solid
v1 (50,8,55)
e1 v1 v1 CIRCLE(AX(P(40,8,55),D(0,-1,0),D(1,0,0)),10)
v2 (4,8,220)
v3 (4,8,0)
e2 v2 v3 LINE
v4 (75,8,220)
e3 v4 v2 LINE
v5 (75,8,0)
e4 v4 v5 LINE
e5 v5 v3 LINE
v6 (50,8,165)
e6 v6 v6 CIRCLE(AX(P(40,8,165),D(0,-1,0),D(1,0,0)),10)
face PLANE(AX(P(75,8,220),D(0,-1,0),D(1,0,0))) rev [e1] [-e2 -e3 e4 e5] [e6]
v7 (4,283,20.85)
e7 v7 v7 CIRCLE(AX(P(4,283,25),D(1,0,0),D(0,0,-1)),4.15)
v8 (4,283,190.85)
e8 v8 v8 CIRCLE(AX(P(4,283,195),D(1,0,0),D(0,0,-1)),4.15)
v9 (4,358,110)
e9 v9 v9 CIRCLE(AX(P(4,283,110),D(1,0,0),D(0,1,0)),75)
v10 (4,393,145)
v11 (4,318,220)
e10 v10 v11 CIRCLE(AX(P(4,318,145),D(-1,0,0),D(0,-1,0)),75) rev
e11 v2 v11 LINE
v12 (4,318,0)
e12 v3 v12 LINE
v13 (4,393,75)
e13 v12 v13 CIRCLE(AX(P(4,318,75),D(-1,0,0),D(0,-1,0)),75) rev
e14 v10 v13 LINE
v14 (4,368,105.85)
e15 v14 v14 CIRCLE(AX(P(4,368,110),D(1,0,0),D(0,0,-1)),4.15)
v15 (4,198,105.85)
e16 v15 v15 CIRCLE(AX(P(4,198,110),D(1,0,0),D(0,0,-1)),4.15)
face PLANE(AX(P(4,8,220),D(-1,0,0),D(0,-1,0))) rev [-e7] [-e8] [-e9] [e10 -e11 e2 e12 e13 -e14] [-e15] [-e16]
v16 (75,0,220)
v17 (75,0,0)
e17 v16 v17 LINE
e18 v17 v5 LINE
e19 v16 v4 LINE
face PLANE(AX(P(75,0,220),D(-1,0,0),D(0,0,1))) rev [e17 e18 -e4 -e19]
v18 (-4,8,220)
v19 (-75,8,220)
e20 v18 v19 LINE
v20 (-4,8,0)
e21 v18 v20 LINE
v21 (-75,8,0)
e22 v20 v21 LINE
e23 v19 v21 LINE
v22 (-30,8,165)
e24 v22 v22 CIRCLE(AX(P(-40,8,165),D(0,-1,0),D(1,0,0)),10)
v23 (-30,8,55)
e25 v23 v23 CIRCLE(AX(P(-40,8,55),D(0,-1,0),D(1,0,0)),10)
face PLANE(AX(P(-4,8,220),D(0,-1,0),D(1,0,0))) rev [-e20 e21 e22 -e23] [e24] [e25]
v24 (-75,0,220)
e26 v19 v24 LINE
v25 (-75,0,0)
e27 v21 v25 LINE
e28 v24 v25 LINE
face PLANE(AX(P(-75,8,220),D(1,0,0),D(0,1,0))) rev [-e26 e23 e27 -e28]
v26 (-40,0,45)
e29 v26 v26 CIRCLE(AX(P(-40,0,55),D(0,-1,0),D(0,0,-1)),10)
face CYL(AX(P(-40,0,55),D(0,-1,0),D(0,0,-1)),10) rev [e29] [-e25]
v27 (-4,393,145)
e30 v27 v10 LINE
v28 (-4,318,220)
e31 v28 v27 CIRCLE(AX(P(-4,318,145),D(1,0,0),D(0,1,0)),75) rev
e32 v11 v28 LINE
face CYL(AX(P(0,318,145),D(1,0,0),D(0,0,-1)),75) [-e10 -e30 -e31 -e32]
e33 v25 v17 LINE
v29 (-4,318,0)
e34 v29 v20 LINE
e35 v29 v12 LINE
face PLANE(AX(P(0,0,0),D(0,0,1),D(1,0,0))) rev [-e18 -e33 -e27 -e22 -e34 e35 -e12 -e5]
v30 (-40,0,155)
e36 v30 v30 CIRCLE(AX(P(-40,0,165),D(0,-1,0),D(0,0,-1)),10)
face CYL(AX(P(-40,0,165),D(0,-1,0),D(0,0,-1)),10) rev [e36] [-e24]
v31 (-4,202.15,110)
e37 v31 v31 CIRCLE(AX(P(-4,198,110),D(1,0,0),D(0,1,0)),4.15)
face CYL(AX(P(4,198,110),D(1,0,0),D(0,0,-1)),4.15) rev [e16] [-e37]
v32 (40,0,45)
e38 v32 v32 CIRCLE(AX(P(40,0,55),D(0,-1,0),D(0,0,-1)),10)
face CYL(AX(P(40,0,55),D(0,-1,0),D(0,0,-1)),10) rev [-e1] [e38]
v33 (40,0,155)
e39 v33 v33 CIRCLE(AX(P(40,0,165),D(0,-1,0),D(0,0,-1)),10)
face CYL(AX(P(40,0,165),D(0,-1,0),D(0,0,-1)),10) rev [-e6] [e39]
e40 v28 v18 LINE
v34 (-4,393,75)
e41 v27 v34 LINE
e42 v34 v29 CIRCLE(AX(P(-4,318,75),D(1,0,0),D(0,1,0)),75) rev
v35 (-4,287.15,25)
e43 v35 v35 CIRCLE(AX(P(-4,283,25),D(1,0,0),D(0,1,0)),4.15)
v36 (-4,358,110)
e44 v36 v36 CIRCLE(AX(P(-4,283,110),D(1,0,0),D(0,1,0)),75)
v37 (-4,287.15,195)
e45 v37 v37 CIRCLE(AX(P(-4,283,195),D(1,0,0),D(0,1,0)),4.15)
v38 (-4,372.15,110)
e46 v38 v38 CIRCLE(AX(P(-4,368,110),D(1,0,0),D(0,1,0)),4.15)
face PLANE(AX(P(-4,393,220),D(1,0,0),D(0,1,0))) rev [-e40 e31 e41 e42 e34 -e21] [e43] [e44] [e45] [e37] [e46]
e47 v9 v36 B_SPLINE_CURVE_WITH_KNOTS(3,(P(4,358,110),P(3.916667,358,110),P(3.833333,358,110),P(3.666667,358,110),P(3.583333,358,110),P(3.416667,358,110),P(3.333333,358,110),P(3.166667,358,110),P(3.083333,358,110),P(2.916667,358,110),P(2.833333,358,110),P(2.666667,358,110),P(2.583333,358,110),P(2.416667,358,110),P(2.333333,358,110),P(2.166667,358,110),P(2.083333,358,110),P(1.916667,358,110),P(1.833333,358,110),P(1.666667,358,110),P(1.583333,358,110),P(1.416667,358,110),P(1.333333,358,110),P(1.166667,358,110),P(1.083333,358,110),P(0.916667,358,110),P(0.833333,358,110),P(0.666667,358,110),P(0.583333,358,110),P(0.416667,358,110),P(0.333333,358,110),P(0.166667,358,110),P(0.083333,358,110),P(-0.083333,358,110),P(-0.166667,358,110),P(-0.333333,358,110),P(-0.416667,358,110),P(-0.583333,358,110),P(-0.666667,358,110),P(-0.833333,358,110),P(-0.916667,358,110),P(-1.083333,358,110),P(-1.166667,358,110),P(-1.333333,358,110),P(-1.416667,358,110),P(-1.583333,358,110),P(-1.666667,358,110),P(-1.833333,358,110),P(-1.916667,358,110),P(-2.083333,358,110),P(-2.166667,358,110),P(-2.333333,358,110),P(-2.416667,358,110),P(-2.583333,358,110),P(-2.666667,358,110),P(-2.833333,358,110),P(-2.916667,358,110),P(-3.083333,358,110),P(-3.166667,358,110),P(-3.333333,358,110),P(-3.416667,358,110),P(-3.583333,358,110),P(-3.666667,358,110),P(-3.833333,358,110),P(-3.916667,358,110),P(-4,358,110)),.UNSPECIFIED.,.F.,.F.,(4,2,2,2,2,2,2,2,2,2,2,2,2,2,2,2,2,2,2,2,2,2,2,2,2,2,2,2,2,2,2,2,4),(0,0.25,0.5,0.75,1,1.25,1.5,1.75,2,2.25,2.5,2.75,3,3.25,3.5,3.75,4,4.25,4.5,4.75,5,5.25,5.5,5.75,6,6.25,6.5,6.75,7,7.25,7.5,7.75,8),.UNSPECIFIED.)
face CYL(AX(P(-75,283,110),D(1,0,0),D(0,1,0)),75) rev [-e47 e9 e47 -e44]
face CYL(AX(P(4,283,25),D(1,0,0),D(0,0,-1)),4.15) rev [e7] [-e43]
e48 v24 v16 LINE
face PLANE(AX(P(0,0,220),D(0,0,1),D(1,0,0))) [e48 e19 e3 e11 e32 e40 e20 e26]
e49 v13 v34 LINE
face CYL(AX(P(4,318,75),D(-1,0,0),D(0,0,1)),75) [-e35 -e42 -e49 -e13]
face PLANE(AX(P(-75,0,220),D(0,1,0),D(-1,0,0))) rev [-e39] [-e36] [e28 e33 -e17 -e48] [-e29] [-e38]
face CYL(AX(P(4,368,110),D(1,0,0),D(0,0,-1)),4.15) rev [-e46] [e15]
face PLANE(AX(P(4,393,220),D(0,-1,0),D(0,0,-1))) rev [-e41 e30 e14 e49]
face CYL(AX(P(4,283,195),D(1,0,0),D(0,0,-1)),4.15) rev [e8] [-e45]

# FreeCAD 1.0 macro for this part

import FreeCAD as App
import Part
import Sketcher
from FreeCAD import Vector


def edges_at(feature, points):
    """Names of the edges that pass closest to the given points."""
    edges = feature.Shape.Edges
    near = lambda p: min(range(len(edges)), key=lambda i: edges[i].distToShape(Part.Vertex(*p))[0])
    return sorted({f"Edge{near(p) + 1}" for p in points})


def add_polygon(sketch, points):
    """Adds a closed chain of lines whose ends are joined by coincident constraints."""
    first, n = sketch.GeometryCount, len(points)
    for a, b in zip(points, points[1:] + points[:1]):
        sketch.addGeometry(Part.LineSegment(App.Vector(*a, 0), App.Vector(*b, 0)), False)
    for i in range(n):
        sketch.addConstraint(Sketcher.Constraint("Coincident", first + i, 2, first + (i + 1) % n, 1))

doc = App.newDocument("Part")
body = doc.addObject("PartDesign::Body", "Body")

# Sketch on XY plane
sketch1 = body.newObject("Sketcher::SketchObject", "Sketch")
sketch1.AttachmentSupport = (doc.getObject("XY_Plane"), [""])
sketch1.MapMode = "FlatFace"
add_polygon(sketch1, [(-4, 393), (-4, 8), (-75, 8), (-75, 0), (75, 0), (75, 8), (4, 8), (4, 393)])  # lines 0-7
sketch1.addConstraint(Sketcher.Constraint("Vertical", 0))
sketch1.addConstraint(Sketcher.Constraint("Horizontal", 1))
sketch1.addConstraint(Sketcher.Constraint("Vertical", 2))
sketch1.addConstraint(Sketcher.Constraint("Horizontal", 3))
sketch1.addConstraint(Sketcher.Constraint("Vertical", 4))
sketch1.addConstraint(Sketcher.Constraint("Horizontal", 5))
sketch1.addConstraint(Sketcher.Constraint("Vertical", 6))
sketch1.addConstraint(Sketcher.Constraint("Horizontal", 7))
sketch1.addConstraint(Sketcher.Constraint("Symmetric", 2, 2, 3, 2, -1, 1))
sketch1.addConstraint(Sketcher.Constraint("Symmetric", 0, 2, 5, 2, -2))
sketch1.addConstraint(Sketcher.Constraint("Equal", 7, 2))
sketch1.addConstraint(Sketcher.Constraint("DistanceX", 1, 2, 1, 1, 71.0))
sketch1.addConstraint(Sketcher.Constraint("DistanceX", 3, 1, 3, 2, 150.0))
sketch1.addConstraint(Sketcher.Constraint("DistanceY", 0, 2, 0, 1, 385.0))
pad1 = body.newObject("PartDesign::Pad", "Pad")
pad1.Profile = sketch1
pad1.Length = 220

# Sketch on XZ plane
sketch2 = body.newObject("Sketcher::SketchObject", "Sketch001")
sketch2.AttachmentSupport = (doc.getObject("XZ_Plane"), [""])
sketch2.MapMode = "FlatFace"
sketch2.addGeometry(Part.Circle(Vector(40, 55, 0), Vector(0, 0, 1), 10), False)
sketch2.addGeometry(Part.Circle(Vector(40, 165, 0), Vector(0, 0, 1), 10), False)
sketch2.addGeometry(Part.Circle(Vector(-40, 165, 0), Vector(0, 0, 1), 10), False)
sketch2.addGeometry(Part.Circle(Vector(-40, 55, 0), Vector(0, 0, 1), 10), False)
sketch2.addConstraint(Sketcher.Constraint("Equal", 0, 1))
sketch2.addConstraint(Sketcher.Constraint("Equal", 1, 2))
sketch2.addConstraint(Sketcher.Constraint("Equal", 2, 3))
sketch2.addConstraint(Sketcher.Constraint("Symmetric", 1, 3, 2, 3, -2))
sketch2.addConstraint(Sketcher.Constraint("Symmetric", 0, 3, 3, 3, -2))
sketch2.addConstraint(Sketcher.Constraint("Vertical", 0, 3, 1, 3))
sketch2.addConstraint(Sketcher.Constraint("Diameter", 0, 20.0))
sketch2.addConstraint(Sketcher.Constraint("DistanceX", -1, 1, 0, 3, 40.0))
sketch2.addConstraint(Sketcher.Constraint("DistanceY", -1, 1, 0, 3, 55.0))
sketch2.addConstraint(Sketcher.Constraint("DistanceY", -1, 1, 1, 3, 165.0))
doc.recompute()
hole = body.newObject("PartDesign::Hole", "Hole")
hole.Profile = sketch2
hole.ThreadType = "None"
hole.Diameter = 20
hole.DepthType = "ThroughAll"
doc.recompute()

fillet = body.newObject("PartDesign::Fillet", "Fillet")
fillet.Base = (hole, edges_at(hole, [(0, 393, 0), (0, 393, 220)]))
fillet.Radius = 75

# Sketch on YZ plane
sketch3 = body.newObject("Sketcher::SketchObject", "Sketch002")
sketch3.AttachmentSupport = (doc.getObject("YZ_Plane"), [""])
sketch3.MapMode = "FlatFace"
sketch3.AttachmentOffset = App.Placement(Vector(0, 0, 4), App.Rotation())
sketch3.addGeometry(Part.Circle(Vector(283, 110, 0), Vector(0, 0, 1), 75), False)
sketch3.addConstraint(Sketcher.Constraint("Diameter", 0, 150.0))
sketch3.addConstraint(Sketcher.Constraint("DistanceX", -1, 1, 0, 3, 283.0))
sketch3.addConstraint(Sketcher.Constraint("DistanceY", -1, 1, 0, 3, 110.0))
pocket1 = body.newObject("PartDesign::Pocket", "Pocket")
pocket1.Profile = sketch3
pocket1.Type = "ThroughAll"

# Sketch on YZ plane
sketch4 = body.newObject("Sketcher::SketchObject", "Sketch003")
sketch4.AttachmentSupport = (doc.getObject("YZ_Plane"), [""])
sketch4.MapMode = "FlatFace"
sketch4.AttachmentOffset = App.Placement(Vector(0, 0, 4), App.Rotation())
sketch4.addGeometry(Part.Circle(Vector(368, 110, 0), Vector(0, 0, 1), 4.15), False)
sketch4.addGeometry(Part.Circle(Vector(283, 195, 0), Vector(0, 0, 1), 4.15), False)
sketch4.addGeometry(Part.Circle(Vector(198, 110, 0), Vector(0, 0, 1), 4.15), False)
sketch4.addGeometry(Part.Circle(Vector(283, 25, 0), Vector(0, 0, 1), 4.15), False)
sketch4.addConstraint(Sketcher.Constraint("Equal", 0, 1))
sketch4.addConstraint(Sketcher.Constraint("Equal", 1, 2))
sketch4.addConstraint(Sketcher.Constraint("Equal", 2, 3))
sketch4.addConstraint(Sketcher.Constraint("Horizontal", 0, 3, 2, 3))
sketch4.addConstraint(Sketcher.Constraint("Vertical", 1, 3, 3, 3))
sketch4.addConstraint(Sketcher.Constraint("Diameter", 0, 8.3))
sketch4.addConstraint(Sketcher.Constraint("DistanceX", -1, 1, 0, 3, 368.0))
sketch4.addConstraint(Sketcher.Constraint("DistanceY", -1, 1, 0, 3, 110.0))
sketch4.addConstraint(Sketcher.Constraint("DistanceX", -1, 1, 1, 3, 283.0))
sketch4.addConstraint(Sketcher.Constraint("DistanceY", -1, 1, 1, 3, 195.0))
sketch4.addConstraint(Sketcher.Constraint("DistanceX", -1, 1, 2, 3, 198.0))
sketch4.addConstraint(Sketcher.Constraint("DistanceY", -1, 1, 3, 3, 25.0))
doc.recompute()
hole2 = body.newObject("PartDesign::Hole", "Hole001")
hole2.Profile = sketch4
hole2.ThreadType = "None"
hole2.Diameter = 8.3
hole2.DepthType = "ThroughAll"

doc.recompute()
